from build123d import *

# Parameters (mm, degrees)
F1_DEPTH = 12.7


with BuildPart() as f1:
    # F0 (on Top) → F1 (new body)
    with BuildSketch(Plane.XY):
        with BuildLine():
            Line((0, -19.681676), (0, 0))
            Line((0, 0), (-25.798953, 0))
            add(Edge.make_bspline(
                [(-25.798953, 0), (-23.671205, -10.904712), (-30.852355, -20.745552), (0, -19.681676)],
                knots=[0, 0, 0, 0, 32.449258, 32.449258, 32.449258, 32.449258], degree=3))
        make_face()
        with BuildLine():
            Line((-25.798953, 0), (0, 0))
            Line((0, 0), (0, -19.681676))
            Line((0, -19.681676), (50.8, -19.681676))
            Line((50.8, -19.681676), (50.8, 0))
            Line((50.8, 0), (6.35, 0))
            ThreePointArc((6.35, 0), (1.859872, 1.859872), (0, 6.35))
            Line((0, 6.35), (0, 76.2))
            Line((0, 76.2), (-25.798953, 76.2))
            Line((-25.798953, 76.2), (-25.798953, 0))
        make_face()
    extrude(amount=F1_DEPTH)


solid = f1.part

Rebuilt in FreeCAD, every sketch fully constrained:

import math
import FreeCAD as App
import Part
import Sketcher

V = App.Vector
Q = App.Units.Quantity

doc = App.newDocument("Part")
body = doc.addObject("PartDesign::Body", "Body")

# Sketch on XY plane
sketch1 = doc.addObject("Sketcher::SketchObject", "Sketch")
body.addObject(sketch1)
sketch1.AttachmentSupport = (doc.XY_Plane, [""])
sketch1.MapMode = "FlatFace"
sketch1.addGeometry([
    Part.BSplineCurve([V(-25.798953, 0, 0), V(-23.671205, -10.904712, 0), V(-30.852355, -20.745552, 0), V(0, -19.681676, 0)], [4, 4], [0, 32.449258], False, 3, [1, 1, 1, 1], False),  # 0
    Part.LineSegment(V(0, -19.681676, 0), V(50.8, -19.681676, 0)),  # 1
    Part.LineSegment(V(50.8, -19.681676, 0), V(50.8, 0, 0)),  # 2
    Part.LineSegment(V(50.8, 0, 0), V(6.35, 0, 0)),  # 3
    Part.ArcOfCircle(Part.Circle(V(6.35, 6.35, 0), V(0, 0, 1), 6.35), math.radians(-179.999998), math.radians(-90.000002)),  # 4
    Part.LineSegment(V(0, 6.35, 0), V(0, 76.2, 0)),  # 5
    Part.LineSegment(V(0, 76.2, 0), V(-25.798953, 76.2, 0)),  # 6
    Part.LineSegment(V(-25.798953, 76.2, 0), V(-25.798953, 0, 0)),  # 7
], False)
sketch1.addConstraint([
    Sketcher.Constraint("Block", 0),
    Sketcher.Constraint("Coincident", 0, 2, 1, 1),
    Sketcher.Constraint("Coincident", 1, 2, 2, 1),
    Sketcher.Constraint("Coincident", 2, 2, 3, 1),
    Sketcher.Constraint("Tangent", 3, 2, 4, 2),
    Sketcher.Constraint("Tangent", 4, 1, 5, 1),
    Sketcher.Constraint("Coincident", 5, 2, 6, 1),
    Sketcher.Constraint("Coincident", 6, 2, 7, 1),
    Sketcher.Constraint("Coincident", 7, 2, 0, 1),
    Sketcher.Constraint("Horizontal", 1),
    Sketcher.Constraint("Vertical", 2),
    Sketcher.Constraint("Horizontal", 3),
    Sketcher.Constraint("Vertical", 5),
    Sketcher.Constraint("Horizontal", 6),
    Sketcher.Constraint("Vertical", 7),
    Sketcher.Constraint("PointOnObject", 2, 2, -1),
    Sketcher.Constraint("PointOnObject", 4, 1, -2),
    Sketcher.Constraint("DistanceX", 1, 1, 1, 2, Q("2 in")),
    Sketcher.Constraint("DistanceY", 7, 2, 7, 1, Q("3 in")),
    Sketcher.Constraint("Radius", 4, Q("0.25 in")),
])
pad1 = doc.addObject("PartDesign::Pad", "Pad")
body.addObject(pad1)
pad1.Profile = sketch1
pad1.Length = Q("0.5 in")

doc.recompute()
